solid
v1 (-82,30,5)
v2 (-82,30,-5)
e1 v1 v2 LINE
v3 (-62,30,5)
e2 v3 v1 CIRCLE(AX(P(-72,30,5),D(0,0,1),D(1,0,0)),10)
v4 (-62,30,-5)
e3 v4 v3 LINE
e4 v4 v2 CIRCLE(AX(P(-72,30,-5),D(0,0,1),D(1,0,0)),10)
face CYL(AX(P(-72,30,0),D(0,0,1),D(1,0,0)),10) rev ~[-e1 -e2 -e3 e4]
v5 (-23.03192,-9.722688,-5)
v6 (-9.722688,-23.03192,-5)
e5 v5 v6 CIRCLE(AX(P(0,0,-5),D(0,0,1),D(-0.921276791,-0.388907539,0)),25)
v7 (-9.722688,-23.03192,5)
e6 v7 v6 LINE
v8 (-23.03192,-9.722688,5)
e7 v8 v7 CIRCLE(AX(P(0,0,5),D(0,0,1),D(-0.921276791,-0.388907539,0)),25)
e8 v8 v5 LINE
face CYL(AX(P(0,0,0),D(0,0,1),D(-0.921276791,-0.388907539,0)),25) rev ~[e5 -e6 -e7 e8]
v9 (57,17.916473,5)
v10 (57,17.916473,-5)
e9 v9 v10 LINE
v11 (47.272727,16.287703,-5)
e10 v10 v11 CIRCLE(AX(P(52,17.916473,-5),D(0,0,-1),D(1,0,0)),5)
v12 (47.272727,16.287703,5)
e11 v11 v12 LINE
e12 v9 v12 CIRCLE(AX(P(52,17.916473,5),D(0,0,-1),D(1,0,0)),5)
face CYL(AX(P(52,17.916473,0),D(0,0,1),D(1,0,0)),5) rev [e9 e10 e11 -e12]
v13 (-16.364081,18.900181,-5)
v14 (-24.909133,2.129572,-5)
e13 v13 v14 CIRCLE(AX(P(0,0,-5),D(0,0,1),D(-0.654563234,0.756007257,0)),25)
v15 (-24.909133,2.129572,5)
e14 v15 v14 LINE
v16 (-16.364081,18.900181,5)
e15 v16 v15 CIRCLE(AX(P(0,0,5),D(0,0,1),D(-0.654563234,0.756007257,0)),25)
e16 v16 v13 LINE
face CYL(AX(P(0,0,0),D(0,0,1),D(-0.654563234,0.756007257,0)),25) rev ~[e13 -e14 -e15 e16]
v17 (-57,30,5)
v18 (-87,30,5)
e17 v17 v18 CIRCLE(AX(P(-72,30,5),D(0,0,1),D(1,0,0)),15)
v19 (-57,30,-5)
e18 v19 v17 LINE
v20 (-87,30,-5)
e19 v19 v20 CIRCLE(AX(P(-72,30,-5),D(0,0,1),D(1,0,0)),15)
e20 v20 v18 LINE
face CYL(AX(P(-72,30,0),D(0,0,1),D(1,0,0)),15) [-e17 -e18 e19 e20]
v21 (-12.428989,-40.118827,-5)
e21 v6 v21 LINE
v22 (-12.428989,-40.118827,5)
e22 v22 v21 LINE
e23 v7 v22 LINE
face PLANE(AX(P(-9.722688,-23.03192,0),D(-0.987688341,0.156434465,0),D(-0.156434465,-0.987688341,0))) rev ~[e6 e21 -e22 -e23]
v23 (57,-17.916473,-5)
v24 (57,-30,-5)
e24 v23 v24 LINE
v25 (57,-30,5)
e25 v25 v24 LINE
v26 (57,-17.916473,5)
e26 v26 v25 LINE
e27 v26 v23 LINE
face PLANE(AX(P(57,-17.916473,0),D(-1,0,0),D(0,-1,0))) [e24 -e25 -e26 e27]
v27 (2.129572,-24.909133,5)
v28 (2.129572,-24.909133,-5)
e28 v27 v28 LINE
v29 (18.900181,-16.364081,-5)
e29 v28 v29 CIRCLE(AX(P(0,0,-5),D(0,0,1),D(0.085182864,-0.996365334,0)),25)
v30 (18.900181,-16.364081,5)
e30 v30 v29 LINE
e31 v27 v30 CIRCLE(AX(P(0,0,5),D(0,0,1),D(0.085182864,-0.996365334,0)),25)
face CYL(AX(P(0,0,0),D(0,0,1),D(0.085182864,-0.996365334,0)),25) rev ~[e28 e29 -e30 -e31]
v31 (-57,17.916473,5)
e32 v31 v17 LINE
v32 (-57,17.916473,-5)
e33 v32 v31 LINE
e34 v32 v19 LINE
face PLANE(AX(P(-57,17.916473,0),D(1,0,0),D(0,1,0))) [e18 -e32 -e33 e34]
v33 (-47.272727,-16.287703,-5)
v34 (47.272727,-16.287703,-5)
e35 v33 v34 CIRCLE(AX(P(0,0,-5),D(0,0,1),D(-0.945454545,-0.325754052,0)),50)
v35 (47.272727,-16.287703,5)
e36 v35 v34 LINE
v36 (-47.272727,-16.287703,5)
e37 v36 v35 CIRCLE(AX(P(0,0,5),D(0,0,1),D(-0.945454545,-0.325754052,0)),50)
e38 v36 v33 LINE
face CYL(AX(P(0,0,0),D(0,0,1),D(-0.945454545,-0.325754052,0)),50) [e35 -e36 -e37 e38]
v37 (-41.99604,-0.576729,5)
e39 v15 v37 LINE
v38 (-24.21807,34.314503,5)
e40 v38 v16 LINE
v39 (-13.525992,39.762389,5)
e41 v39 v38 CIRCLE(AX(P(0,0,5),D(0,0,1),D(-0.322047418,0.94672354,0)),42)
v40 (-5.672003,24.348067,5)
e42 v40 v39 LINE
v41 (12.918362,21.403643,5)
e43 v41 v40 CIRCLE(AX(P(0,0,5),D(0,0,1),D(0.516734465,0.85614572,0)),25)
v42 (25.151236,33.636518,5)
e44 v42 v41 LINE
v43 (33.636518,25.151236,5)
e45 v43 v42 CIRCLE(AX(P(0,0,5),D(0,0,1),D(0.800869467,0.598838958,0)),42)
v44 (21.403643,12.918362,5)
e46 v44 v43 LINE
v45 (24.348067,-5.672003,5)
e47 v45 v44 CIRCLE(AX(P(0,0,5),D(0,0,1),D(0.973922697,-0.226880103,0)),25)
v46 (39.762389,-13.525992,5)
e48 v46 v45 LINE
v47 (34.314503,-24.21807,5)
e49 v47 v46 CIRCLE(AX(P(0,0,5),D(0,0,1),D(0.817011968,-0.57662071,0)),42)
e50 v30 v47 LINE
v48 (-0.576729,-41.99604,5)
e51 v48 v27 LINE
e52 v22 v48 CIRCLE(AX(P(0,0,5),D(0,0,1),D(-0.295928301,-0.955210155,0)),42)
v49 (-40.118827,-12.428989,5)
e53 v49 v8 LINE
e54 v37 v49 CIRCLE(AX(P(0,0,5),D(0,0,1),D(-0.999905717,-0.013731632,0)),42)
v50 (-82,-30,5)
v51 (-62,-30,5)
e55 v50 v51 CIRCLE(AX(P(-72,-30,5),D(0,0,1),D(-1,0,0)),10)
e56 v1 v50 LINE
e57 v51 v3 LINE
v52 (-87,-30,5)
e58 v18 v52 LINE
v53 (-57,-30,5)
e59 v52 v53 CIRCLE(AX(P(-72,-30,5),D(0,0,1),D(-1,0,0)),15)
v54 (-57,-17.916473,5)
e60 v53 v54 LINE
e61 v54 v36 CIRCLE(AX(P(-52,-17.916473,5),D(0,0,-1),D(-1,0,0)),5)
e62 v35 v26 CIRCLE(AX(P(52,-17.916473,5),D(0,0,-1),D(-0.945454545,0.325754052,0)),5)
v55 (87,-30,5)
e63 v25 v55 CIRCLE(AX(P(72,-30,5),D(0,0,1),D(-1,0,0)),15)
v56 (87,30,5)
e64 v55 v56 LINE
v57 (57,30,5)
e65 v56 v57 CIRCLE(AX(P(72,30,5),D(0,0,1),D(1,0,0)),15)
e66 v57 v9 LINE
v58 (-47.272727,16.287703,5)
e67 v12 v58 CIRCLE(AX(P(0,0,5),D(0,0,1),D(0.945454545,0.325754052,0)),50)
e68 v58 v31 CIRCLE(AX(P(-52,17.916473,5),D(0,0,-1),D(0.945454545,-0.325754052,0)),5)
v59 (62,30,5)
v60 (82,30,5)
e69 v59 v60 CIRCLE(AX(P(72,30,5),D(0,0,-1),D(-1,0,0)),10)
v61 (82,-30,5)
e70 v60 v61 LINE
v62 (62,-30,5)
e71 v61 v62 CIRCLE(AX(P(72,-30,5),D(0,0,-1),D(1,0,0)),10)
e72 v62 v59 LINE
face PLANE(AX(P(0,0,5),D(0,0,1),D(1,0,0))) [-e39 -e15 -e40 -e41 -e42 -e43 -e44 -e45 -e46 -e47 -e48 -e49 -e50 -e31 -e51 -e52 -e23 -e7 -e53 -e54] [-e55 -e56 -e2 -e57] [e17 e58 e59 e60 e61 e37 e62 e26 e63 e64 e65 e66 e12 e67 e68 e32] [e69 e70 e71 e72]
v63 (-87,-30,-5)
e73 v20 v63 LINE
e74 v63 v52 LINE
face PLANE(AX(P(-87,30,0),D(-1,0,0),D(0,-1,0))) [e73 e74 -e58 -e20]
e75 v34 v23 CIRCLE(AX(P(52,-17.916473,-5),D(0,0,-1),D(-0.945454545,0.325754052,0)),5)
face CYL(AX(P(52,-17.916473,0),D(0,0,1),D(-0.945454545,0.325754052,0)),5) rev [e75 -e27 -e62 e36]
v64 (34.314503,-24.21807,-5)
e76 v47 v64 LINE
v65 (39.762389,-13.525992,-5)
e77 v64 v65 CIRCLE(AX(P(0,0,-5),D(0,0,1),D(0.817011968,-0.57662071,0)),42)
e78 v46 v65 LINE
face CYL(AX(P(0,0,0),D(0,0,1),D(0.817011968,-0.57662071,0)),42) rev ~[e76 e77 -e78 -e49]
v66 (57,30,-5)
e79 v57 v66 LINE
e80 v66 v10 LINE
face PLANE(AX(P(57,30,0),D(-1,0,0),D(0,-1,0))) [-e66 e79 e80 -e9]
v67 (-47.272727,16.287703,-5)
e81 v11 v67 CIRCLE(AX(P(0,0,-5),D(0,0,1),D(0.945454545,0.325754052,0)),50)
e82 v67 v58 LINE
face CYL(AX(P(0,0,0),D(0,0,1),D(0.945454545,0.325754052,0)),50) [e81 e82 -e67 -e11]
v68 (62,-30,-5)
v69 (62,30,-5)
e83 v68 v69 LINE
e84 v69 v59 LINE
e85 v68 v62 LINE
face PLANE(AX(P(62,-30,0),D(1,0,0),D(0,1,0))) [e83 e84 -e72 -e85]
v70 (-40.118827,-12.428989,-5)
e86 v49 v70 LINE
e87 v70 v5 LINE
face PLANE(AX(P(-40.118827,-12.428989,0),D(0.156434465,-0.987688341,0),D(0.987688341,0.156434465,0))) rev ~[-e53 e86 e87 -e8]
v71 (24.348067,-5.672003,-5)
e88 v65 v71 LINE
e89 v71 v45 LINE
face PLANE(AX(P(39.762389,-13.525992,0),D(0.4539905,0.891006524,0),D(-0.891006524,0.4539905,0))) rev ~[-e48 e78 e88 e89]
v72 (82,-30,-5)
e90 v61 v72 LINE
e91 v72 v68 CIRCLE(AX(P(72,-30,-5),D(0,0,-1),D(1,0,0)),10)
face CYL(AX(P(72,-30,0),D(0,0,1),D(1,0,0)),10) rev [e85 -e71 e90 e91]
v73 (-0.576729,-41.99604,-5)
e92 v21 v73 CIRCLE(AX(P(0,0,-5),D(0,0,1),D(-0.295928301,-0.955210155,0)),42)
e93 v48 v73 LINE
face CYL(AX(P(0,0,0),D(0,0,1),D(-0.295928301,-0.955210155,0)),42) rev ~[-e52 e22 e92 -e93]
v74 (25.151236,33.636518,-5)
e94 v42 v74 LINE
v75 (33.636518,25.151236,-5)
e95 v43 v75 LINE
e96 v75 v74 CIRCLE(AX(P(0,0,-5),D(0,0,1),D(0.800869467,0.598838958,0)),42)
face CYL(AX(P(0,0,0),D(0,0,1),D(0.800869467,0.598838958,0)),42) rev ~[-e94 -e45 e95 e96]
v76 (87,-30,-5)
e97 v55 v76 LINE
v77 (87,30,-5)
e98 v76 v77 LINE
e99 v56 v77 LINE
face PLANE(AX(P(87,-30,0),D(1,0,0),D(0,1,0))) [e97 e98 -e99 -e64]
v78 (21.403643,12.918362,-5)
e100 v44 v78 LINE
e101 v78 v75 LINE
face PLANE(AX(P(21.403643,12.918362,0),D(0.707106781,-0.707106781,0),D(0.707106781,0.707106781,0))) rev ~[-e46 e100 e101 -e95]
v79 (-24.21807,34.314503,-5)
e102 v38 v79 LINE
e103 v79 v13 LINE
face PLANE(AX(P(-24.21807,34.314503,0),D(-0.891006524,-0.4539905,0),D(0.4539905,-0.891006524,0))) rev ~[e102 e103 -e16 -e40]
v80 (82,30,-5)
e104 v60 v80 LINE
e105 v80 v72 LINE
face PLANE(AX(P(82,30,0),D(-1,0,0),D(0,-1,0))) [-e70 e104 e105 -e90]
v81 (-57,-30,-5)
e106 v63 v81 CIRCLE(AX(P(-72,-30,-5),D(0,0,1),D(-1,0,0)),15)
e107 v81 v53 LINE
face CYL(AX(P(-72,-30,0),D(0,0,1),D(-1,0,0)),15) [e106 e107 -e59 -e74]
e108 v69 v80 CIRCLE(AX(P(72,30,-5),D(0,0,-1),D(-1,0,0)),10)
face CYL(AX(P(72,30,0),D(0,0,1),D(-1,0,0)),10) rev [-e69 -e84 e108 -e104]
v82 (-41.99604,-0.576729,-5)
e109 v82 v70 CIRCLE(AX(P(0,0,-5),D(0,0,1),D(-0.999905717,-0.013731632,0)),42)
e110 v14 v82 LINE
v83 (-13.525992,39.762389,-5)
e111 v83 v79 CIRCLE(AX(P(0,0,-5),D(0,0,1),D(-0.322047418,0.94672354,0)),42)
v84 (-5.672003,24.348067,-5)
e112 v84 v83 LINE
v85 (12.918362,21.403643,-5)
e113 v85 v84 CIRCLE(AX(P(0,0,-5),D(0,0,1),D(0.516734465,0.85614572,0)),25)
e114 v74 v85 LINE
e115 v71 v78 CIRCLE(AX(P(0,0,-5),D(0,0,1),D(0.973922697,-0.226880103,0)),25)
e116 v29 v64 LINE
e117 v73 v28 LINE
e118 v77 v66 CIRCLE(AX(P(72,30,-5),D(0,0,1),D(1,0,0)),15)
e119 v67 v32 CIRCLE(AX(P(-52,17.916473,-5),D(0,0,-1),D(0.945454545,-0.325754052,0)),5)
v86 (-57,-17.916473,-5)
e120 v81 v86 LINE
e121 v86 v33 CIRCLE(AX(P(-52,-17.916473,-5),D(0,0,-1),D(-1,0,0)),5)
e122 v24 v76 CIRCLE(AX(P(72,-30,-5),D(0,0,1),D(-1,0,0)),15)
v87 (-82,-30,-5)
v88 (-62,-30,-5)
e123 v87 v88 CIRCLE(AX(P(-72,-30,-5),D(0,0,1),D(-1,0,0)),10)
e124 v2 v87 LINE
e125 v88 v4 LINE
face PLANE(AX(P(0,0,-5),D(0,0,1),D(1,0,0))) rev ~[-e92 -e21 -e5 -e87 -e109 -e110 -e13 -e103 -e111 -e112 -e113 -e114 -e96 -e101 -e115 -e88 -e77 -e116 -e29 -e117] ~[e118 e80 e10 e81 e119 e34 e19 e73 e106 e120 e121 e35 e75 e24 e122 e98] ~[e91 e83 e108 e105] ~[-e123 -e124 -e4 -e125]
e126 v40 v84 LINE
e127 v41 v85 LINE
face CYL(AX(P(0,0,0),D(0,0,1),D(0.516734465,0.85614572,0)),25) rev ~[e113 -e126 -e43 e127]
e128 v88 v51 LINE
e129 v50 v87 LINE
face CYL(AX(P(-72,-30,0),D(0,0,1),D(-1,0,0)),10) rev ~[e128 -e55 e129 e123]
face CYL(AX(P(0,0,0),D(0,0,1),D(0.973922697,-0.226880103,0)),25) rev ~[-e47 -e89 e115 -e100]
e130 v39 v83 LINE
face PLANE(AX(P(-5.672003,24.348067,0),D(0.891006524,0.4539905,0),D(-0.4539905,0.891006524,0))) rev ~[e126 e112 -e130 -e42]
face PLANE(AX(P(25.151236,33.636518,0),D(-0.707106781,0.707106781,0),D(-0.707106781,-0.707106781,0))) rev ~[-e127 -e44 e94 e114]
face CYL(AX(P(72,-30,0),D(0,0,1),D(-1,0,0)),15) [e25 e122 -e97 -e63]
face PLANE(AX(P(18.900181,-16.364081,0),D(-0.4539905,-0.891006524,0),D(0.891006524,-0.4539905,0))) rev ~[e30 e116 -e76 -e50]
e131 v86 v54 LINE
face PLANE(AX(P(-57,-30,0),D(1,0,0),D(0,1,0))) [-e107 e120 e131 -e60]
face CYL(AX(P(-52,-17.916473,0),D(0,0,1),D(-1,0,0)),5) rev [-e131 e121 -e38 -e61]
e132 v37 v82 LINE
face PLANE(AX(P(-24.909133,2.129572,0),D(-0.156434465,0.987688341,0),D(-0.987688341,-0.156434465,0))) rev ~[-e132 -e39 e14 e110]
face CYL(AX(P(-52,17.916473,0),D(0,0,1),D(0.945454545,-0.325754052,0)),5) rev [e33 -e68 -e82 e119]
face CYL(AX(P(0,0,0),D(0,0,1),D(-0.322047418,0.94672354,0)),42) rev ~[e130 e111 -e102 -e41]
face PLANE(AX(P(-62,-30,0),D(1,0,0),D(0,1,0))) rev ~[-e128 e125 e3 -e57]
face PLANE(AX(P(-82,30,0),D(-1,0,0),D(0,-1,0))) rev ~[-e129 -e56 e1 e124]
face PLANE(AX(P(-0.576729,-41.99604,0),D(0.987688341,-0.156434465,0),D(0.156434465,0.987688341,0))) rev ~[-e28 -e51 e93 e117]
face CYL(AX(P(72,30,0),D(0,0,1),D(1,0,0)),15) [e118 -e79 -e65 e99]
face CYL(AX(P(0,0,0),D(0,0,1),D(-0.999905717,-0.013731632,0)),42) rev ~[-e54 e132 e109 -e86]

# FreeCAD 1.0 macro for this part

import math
import FreeCAD as App
import Part
import Sketcher
from FreeCAD import Vector
Q = App.Units.Quantity

doc = App.newDocument("Part")
body = doc.addObject("PartDesign::Body", "Body")

# Sketch on XY plane
sketch1 = body.newObject("Sketcher::SketchObject", "Sketch")
sketch1.AttachmentSupport = (doc.getObject("XY_Plane"), [""])
sketch1.MapMode = "FlatFace"
sketch1.addGeometry([
    Part.ArcOfCircle(Part.Circle(Vector(52, 18, 0), Vector(0, 0, 1), 5), math.radians(-161), math.radians(0)),  # 0
    Part.ArcOfCircle(Part.Circle(Vector(0, 0, 0), Vector(0, 0, 1), 50), math.radians(19), math.radians(161)),  # 1
    Part.ArcOfCircle(Part.Circle(Vector(-52, 18, 0), Vector(0, 0, 1), 5), math.radians(180), math.radians(341)),  # 2
    Part.LineSegment(Vector(-57, 18, 0), Vector(-57, 30, 0)),  # 3
    Part.ArcOfCircle(Part.Circle(Vector(-72, 30, 0), Vector(0, 0, 1), 15), math.radians(0), math.radians(180)),  # 4
    Part.LineSegment(Vector(-87, 30, 0), Vector(-87, -30, 0)),  # 5
    Part.ArcOfCircle(Part.Circle(Vector(-72, -30, 0), Vector(0, 0, 1), 15), math.radians(180), math.radians(360)),  # 6
    Part.LineSegment(Vector(-57, -30, 0), Vector(-57, -18, 0)),  # 7
    Part.ArcOfCircle(Part.Circle(Vector(-52, -18, 0), Vector(0, 0, 1), 5), math.radians(19), math.radians(180)),  # 8
    Part.ArcOfCircle(Part.Circle(Vector(0, 0, 0), Vector(0, 0, 1), 50), math.radians(-161), math.radians(-19)),  # 9
    Part.ArcOfCircle(Part.Circle(Vector(52, -18, 0), Vector(0, 0, 1), 5), math.radians(0), math.radians(161)),  # 10
    Part.LineSegment(Vector(57, -18, 0), Vector(57, -30, 0)),  # 11
    Part.ArcOfCircle(Part.Circle(Vector(72, -30, 0), Vector(0, 0, 1), 15), math.radians(180), math.radians(360)),  # 12
    Part.LineSegment(Vector(87, -30, 0), Vector(87, 30, 0)),  # 13
    Part.ArcOfCircle(Part.Circle(Vector(72, 30, 0), Vector(0, 0, 1), 15), math.radians(0), math.radians(180)),  # 14
    Part.LineSegment(Vector(57, 30, 0), Vector(57, 18, 0)),  # 15
    Part.ArcOfCircle(Part.Circle(Vector(0, 0, 0), Vector(0, 0, 1), 25), math.radians(-13), math.radians(31)),  # 16
    Part.LineSegment(Vector(24, -6, 0), Vector(40, -14, 0)),  # 17
    Part.ArcOfCircle(Part.Circle(Vector(0, 0, 0), Vector(0, 0, 1), 42), math.radians(-35.21), math.radians(-18.79)),  # 18
    Part.LineSegment(Vector(34, -24, 0), Vector(19, -16, 0)),  # 19
    Part.ArcOfCircle(Part.Circle(Vector(0, 0, 0), Vector(0, 0, 1), 25), math.radians(-85), math.radians(-41)),  # 20
    Part.LineSegment(Vector(2, -25, 0), Vector(-1, -42, 0)),  # 21
    Part.ArcOfCircle(Part.Circle(Vector(0, 0, 0), Vector(0, 0, 1), 42), math.radians(-107.21), math.radians(-90.79)),  # 22
    Part.LineSegment(Vector(-12, -40, 0), Vector(-10, -23, 0)),  # 23
    Part.ArcOfCircle(Part.Circle(Vector(0, 0, 0), Vector(0, 0, 1), 25), math.radians(-157), math.radians(-113)),  # 24
    Part.LineSegment(Vector(-23, -10, 0), Vector(-40, -12, 0)),  # 25
    Part.ArcOfCircle(Part.Circle(Vector(0, 0, 0), Vector(0, 0, 1), 42), math.radians(-179.21), math.radians(-162.79)),  # 26
    Part.LineSegment(Vector(-42, -1, 0), Vector(-25, 2, 0)),  # 27
    Part.ArcOfCircle(Part.Circle(Vector(0, 0, 0), Vector(0, 0, 1), 25), math.radians(131), math.radians(175)),  # 28
    Part.LineSegment(Vector(-16, 19, 0), Vector(-24, 34, 0)),  # 29
    Part.ArcOfCircle(Part.Circle(Vector(0, 0, 0), Vector(0, 0, 1), 42), math.radians(108.79), math.radians(125.21)),  # 30
    Part.LineSegment(Vector(-14, 40, 0), Vector(-6, 24, 0)),  # 31
    Part.ArcOfCircle(Part.Circle(Vector(0, 0, 0), Vector(0, 0, 1), 25), math.radians(59), math.radians(103)),  # 32
    Part.LineSegment(Vector(13, 21, 0), Vector(25, 34, 0)),  # 33
    Part.ArcOfCircle(Part.Circle(Vector(0, 0, 0), Vector(0, 0, 1), 42), math.radians(36.79), math.radians(53.21)),  # 34
    Part.LineSegment(Vector(34, 25, 0), Vector(21, 13, 0)),  # 35
    Part.ArcOfCircle(Part.Circle(Vector(-72, 30, 0), Vector(0, 0, 1), 10), math.radians(0), math.radians(180)),  # 36
    Part.LineSegment(Vector(-62, 30, 0), Vector(-62, -30, 0)),  # 37
    Part.ArcOfCircle(Part.Circle(Vector(-72, -30, 0), Vector(0, 0, 1), 10), math.radians(180), math.radians(360)),  # 38
    Part.LineSegment(Vector(-82, -30, 0), Vector(-82, 30, 0)),  # 39
    Part.ArcOfCircle(Part.Circle(Vector(72, -30, 0), Vector(0, 0, 1), 10), math.radians(180), math.radians(360)),  # 40
    Part.LineSegment(Vector(62, -30, 0), Vector(62, 30, 0)),  # 41
    Part.ArcOfCircle(Part.Circle(Vector(72, 30, 0), Vector(0, 0, 1), 10), math.radians(0), math.radians(180)),  # 42
    Part.LineSegment(Vector(82, 30, 0), Vector(82, -30, 0)),  # 43
], False)
sketch1.addConstraint([
    Sketcher.Constraint("Tangent", 0, 1, 1, 1),
    Sketcher.Constraint("Tangent", 1, 2, 2, 2),
    Sketcher.Constraint("Tangent", 2, 1, 3, 1),
    Sketcher.Constraint("Tangent", 3, 2, 4, 1),
    Sketcher.Constraint("Tangent", 4, 2, 5, 1),
    Sketcher.Constraint("Tangent", 5, 2, 6, 1),
    Sketcher.Constraint("Tangent", 6, 2, 7, 1),
    Sketcher.Constraint("Tangent", 7, 2, 8, 2),
    Sketcher.Constraint("Tangent", 8, 1, 9, 1),
    Sketcher.Constraint("Tangent", 9, 2, 10, 2),
    Sketcher.Constraint("Tangent", 10, 1, 11, 1),
    Sketcher.Constraint("Tangent", 11, 2, 12, 1),
    Sketcher.Constraint("Tangent", 12, 2, 13, 1),
    Sketcher.Constraint("Tangent", 13, 2, 14, 1),
    Sketcher.Constraint("Tangent", 14, 2, 15, 1),
    Sketcher.Constraint("Tangent", 15, 2, 0, 2),
    Sketcher.Constraint("Coincident", 16, 1, 17, 1),
    Sketcher.Constraint("Coincident", 17, 2, 18, 2),
    Sketcher.Constraint("Coincident", 18, 1, 19, 1),
    Sketcher.Constraint("Coincident", 19, 2, 20, 2),
    Sketcher.Constraint("Coincident", 20, 1, 21, 1),
    Sketcher.Constraint("Coincident", 21, 2, 22, 2),
    Sketcher.Constraint("Coincident", 22, 1, 23, 1),
    Sketcher.Constraint("Coincident", 23, 2, 24, 2),
    Sketcher.Constraint("Coincident", 24, 1, 25, 1),
    Sketcher.Constraint("Coincident", 25, 2, 26, 2),
    Sketcher.Constraint("Coincident", 26, 1, 27, 1),
    Sketcher.Constraint("Coincident", 27, 2, 28, 2),
    Sketcher.Constraint("Coincident", 28, 1, 29, 1),
    Sketcher.Constraint("Coincident", 29, 2, 30, 2),
    Sketcher.Constraint("Coincident", 30, 1, 31, 1),
    Sketcher.Constraint("Coincident", 31, 2, 32, 2),
    Sketcher.Constraint("Coincident", 32, 1, 33, 1),
    Sketcher.Constraint("Coincident", 33, 2, 34, 2),
    Sketcher.Constraint("Coincident", 34, 1, 35, 1),
    Sketcher.Constraint("Coincident", 35, 2, 16, 2),
    Sketcher.Constraint("Tangent", 36, 1, 37, 1),
    Sketcher.Constraint("Tangent", 37, 2, 38, 2),
    Sketcher.Constraint("Tangent", 38, 1, 39, 1),
    Sketcher.Constraint("Tangent", 39, 2, 36, 2),
    Sketcher.Constraint("Tangent", 40, 1, 41, 1),
    Sketcher.Constraint("Tangent", 41, 2, 42, 2),
    Sketcher.Constraint("Tangent", 42, 1, 43, 1),
    Sketcher.Constraint("Tangent", 43, 2, 40, 2),
    Sketcher.Constraint("Vertical", 3),
    Sketcher.Constraint("Vertical", 5),
    Sketcher.Constraint("Vertical", 7),
    Sketcher.Constraint("Vertical", 11),
    Sketcher.Constraint("Vertical", 13),
    Sketcher.Constraint("Vertical", 15),
    Sketcher.Constraint("Vertical", 37),
    Sketcher.Constraint("Vertical", 39),
    Sketcher.Constraint("Vertical", 41),
    Sketcher.Constraint("Vertical", 43),
    Sketcher.Constraint("Coincident", 1, 3, -1, 1),
    Sketcher.Constraint("Coincident", 9, 3, -1, 1),
    Sketcher.Constraint("Coincident", 16, 3, -1, 1),
    Sketcher.Constraint("Coincident", 18, 3, -1, 1),
    Sketcher.Constraint("Coincident", 20, 3, -1, 1),
    Sketcher.Constraint("Coincident", 22, 3, -1, 1),
    Sketcher.Constraint("Coincident", 24, 3, -1, 1),
    Sketcher.Constraint("Coincident", 26, 3, -1, 1),
    Sketcher.Constraint("Coincident", 28, 3, -1, 1),
    Sketcher.Constraint("Coincident", 30, 3, -1, 1),
    Sketcher.Constraint("Coincident", 32, 3, -1, 1),
    Sketcher.Constraint("Coincident", 34, 3, -1, 1),
    Sketcher.Constraint("Coincident", 36, 3, 4, 3),
    Sketcher.Constraint("Coincident", 38, 3, 6, 3),
    Sketcher.Constraint("Coincident", 40, 3, 12, 3),
    Sketcher.Constraint("Coincident", 42, 3, 14, 3),
    Sketcher.Constraint("Equal", 0, 2),
    Sketcher.Constraint("Equal", 2, 8),
    Sketcher.Constraint("Equal", 1, 9),
    Sketcher.Constraint("Equal", 8, 10),
    Sketcher.Constraint("Equal", 6, 12),
    Sketcher.Constraint("Equal", 16, 20),
    Sketcher.Constraint("Equal", 18, 22),
    Sketcher.Constraint("Equal", 20, 24),
    Sketcher.Constraint("Equal", 22, 26),
    Sketcher.Constraint("Equal", 24, 28),
    Sketcher.Constraint("Equal", 26, 30),
    Sketcher.Constraint("Equal", 28, 32),
    Sketcher.Constraint("Equal", 30, 34),
    Sketcher.Constraint("Equal", 38, 40),
    Sketcher.Constraint("Symmetric", 4, 3, 12, 3, -1, 1),
    Sketcher.Constraint("Parallel", 17, 19),
    Sketcher.Constraint("Parallel", 21, 23),
    Sketcher.Constraint("Parallel", 25, 27),
    Sketcher.Constraint("Parallel", 29, 31),
    Sketcher.Constraint("Parallel", 33, 35),
    Sketcher.Constraint("Horizontal", 6, 3, 12, 3),
    Sketcher.Constraint("Horizontal", 4, 3, 14, 3),
    Sketcher.Constraint("Equal", 17, 19),
    Sketcher.Constraint("Equal", 19, 21),
    Sketcher.Constraint("Equal", 21, 23),
    Sketcher.Constraint("Equal", 23, 25),
    Sketcher.Constraint("Equal", 25, 27),
    Sketcher.Constraint("Equal", 27, 29),
    Sketcher.Constraint("Equal", 29, 31),
    Sketcher.Constraint("Equal", 31, 33),
    Sketcher.Constraint("Equal", 33, 35),
    Sketcher.Constraint("Radius", 0, 5.0),
    Sketcher.Constraint("Radius", 1, 50.0),
    Sketcher.Constraint("Radius", 4, 15.0),
    Sketcher.Constraint("Radius", 16, 25.0),
    Sketcher.Constraint("Radius", 18, 42.0),
    Sketcher.Constraint("Radius", 36, 10.0),
    Sketcher.Constraint("DistanceY", 5, 2, 5, 1, 60.0),
    Sketcher.Constraint("Angle", 17, Q("-27 deg")),
    Sketcher.Constraint("Angle", 21, Q("-99 deg")),
    Sketcher.Constraint("Angle", 25, Q("-171 deg")),
    Sketcher.Constraint("Angle", 29, Q("117 deg")),
    Sketcher.Constraint("Angle", 33, Q("45 deg")),
    Sketcher.Constraint("DistanceX", -1, 1, 0, 3, 52.0),
    Sketcher.Constraint("DistanceX", -1, 1, 17, 2, 39.762389),
])
pad1 = body.newObject("PartDesign::Pad", "Pad")
pad1.Profile = sketch1
pad1.Length = 10
pad1.Midplane = True

doc.recompute()
